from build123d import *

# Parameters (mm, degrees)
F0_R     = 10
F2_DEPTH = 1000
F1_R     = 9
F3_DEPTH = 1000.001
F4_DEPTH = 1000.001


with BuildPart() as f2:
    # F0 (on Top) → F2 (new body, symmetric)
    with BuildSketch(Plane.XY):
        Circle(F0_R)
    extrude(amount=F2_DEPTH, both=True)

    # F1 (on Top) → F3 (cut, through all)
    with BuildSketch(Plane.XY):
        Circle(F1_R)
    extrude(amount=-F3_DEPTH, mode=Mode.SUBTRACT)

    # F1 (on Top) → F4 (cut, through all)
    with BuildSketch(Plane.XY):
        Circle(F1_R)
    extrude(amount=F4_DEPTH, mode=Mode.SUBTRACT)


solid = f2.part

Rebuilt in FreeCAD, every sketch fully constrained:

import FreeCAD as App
import Part
import Sketcher

V = App.Vector

doc = App.newDocument("Part")
params = doc.addObject("Spreadsheet::Sheet", "Params")
for row, (alias, value) in enumerate([
    ("sketch1_diameter", "20 mm"),
    ("pad1_length", "2000 mm"),
    ("sketch2_diameter", "18 mm"),
    ("sketch3_diameter", "18 mm"),
], start=1):
    params.set(f"A{row}", alias)
    params.set(f"B{row}", "=" + value)
    params.setAlias(f"B{row}", alias)

body = doc.addObject("PartDesign::Body", "Body")

# Sketch on XY plane
sketch1 = body.newObject("Sketcher::SketchObject", "Sketch")
sketch1.AttachmentSupport = (doc.getObject("XY_Plane"), [""])
sketch1.MapMode = "FlatFace"
sketch1.addGeometry(Part.Circle(V(0, 0, 0), V(0, 0, 1), 10), False)
sketch1.addConstraint([
    Sketcher.Constraint("Coincident", 0, 3, -1, 1),
    Sketcher.Constraint("Diameter", 0, 20.0),
])
sketch1.setExpression("Constraints[1]", "Params.sketch1_diameter")
pad1 = body.newObject("PartDesign::Pad", "Pad")
pad1.Profile = sketch1
pad1.setExpression("Length", "Params.pad1_length")
pad1.Midplane = True

# Sketch on XY plane
sketch2 = body.newObject("Sketcher::SketchObject", "Sketch001")
sketch2.AttachmentSupport = (doc.getObject("XY_Plane"), [""])
sketch2.MapMode = "FlatFace"
sketch2.addGeometry(Part.Circle(V(0, 0, 0), V(0, 0, 1), 9), False)
sketch2.addConstraint([
    Sketcher.Constraint("Coincident", 0, 3, -1, 1),
    Sketcher.Constraint("Diameter", 0, 18.0),
])
sketch2.setExpression("Constraints[1]", "Params.sketch2_diameter")
pocket1 = body.newObject("PartDesign::Pocket", "Pocket")
pocket1.Profile = sketch2
pocket1.Type = "ThroughAll"

# Sketch on XY plane
sketch3 = body.newObject("Sketcher::SketchObject", "Sketch002")
sketch3.AttachmentSupport = (doc.getObject("XY_Plane"), [""])
sketch3.MapMode = "FlatFace"
sketch3.addGeometry(Part.Circle(V(0, 0, 0), V(0, 0, 1), 9), False)
sketch3.addConstraint([
    Sketcher.Constraint("Coincident", 0, 3, -1, 1),
    Sketcher.Constraint("Diameter", 0, 18.0),
])
sketch3.setExpression("Constraints[1]", "Params.sketch3_diameter")
pocket2 = body.newObject("PartDesign::Pocket", "Pocket001")
pocket2.Profile = sketch3
pocket2.Type = "ThroughAll"
pocket2.Reversed = True

doc.recompute()
